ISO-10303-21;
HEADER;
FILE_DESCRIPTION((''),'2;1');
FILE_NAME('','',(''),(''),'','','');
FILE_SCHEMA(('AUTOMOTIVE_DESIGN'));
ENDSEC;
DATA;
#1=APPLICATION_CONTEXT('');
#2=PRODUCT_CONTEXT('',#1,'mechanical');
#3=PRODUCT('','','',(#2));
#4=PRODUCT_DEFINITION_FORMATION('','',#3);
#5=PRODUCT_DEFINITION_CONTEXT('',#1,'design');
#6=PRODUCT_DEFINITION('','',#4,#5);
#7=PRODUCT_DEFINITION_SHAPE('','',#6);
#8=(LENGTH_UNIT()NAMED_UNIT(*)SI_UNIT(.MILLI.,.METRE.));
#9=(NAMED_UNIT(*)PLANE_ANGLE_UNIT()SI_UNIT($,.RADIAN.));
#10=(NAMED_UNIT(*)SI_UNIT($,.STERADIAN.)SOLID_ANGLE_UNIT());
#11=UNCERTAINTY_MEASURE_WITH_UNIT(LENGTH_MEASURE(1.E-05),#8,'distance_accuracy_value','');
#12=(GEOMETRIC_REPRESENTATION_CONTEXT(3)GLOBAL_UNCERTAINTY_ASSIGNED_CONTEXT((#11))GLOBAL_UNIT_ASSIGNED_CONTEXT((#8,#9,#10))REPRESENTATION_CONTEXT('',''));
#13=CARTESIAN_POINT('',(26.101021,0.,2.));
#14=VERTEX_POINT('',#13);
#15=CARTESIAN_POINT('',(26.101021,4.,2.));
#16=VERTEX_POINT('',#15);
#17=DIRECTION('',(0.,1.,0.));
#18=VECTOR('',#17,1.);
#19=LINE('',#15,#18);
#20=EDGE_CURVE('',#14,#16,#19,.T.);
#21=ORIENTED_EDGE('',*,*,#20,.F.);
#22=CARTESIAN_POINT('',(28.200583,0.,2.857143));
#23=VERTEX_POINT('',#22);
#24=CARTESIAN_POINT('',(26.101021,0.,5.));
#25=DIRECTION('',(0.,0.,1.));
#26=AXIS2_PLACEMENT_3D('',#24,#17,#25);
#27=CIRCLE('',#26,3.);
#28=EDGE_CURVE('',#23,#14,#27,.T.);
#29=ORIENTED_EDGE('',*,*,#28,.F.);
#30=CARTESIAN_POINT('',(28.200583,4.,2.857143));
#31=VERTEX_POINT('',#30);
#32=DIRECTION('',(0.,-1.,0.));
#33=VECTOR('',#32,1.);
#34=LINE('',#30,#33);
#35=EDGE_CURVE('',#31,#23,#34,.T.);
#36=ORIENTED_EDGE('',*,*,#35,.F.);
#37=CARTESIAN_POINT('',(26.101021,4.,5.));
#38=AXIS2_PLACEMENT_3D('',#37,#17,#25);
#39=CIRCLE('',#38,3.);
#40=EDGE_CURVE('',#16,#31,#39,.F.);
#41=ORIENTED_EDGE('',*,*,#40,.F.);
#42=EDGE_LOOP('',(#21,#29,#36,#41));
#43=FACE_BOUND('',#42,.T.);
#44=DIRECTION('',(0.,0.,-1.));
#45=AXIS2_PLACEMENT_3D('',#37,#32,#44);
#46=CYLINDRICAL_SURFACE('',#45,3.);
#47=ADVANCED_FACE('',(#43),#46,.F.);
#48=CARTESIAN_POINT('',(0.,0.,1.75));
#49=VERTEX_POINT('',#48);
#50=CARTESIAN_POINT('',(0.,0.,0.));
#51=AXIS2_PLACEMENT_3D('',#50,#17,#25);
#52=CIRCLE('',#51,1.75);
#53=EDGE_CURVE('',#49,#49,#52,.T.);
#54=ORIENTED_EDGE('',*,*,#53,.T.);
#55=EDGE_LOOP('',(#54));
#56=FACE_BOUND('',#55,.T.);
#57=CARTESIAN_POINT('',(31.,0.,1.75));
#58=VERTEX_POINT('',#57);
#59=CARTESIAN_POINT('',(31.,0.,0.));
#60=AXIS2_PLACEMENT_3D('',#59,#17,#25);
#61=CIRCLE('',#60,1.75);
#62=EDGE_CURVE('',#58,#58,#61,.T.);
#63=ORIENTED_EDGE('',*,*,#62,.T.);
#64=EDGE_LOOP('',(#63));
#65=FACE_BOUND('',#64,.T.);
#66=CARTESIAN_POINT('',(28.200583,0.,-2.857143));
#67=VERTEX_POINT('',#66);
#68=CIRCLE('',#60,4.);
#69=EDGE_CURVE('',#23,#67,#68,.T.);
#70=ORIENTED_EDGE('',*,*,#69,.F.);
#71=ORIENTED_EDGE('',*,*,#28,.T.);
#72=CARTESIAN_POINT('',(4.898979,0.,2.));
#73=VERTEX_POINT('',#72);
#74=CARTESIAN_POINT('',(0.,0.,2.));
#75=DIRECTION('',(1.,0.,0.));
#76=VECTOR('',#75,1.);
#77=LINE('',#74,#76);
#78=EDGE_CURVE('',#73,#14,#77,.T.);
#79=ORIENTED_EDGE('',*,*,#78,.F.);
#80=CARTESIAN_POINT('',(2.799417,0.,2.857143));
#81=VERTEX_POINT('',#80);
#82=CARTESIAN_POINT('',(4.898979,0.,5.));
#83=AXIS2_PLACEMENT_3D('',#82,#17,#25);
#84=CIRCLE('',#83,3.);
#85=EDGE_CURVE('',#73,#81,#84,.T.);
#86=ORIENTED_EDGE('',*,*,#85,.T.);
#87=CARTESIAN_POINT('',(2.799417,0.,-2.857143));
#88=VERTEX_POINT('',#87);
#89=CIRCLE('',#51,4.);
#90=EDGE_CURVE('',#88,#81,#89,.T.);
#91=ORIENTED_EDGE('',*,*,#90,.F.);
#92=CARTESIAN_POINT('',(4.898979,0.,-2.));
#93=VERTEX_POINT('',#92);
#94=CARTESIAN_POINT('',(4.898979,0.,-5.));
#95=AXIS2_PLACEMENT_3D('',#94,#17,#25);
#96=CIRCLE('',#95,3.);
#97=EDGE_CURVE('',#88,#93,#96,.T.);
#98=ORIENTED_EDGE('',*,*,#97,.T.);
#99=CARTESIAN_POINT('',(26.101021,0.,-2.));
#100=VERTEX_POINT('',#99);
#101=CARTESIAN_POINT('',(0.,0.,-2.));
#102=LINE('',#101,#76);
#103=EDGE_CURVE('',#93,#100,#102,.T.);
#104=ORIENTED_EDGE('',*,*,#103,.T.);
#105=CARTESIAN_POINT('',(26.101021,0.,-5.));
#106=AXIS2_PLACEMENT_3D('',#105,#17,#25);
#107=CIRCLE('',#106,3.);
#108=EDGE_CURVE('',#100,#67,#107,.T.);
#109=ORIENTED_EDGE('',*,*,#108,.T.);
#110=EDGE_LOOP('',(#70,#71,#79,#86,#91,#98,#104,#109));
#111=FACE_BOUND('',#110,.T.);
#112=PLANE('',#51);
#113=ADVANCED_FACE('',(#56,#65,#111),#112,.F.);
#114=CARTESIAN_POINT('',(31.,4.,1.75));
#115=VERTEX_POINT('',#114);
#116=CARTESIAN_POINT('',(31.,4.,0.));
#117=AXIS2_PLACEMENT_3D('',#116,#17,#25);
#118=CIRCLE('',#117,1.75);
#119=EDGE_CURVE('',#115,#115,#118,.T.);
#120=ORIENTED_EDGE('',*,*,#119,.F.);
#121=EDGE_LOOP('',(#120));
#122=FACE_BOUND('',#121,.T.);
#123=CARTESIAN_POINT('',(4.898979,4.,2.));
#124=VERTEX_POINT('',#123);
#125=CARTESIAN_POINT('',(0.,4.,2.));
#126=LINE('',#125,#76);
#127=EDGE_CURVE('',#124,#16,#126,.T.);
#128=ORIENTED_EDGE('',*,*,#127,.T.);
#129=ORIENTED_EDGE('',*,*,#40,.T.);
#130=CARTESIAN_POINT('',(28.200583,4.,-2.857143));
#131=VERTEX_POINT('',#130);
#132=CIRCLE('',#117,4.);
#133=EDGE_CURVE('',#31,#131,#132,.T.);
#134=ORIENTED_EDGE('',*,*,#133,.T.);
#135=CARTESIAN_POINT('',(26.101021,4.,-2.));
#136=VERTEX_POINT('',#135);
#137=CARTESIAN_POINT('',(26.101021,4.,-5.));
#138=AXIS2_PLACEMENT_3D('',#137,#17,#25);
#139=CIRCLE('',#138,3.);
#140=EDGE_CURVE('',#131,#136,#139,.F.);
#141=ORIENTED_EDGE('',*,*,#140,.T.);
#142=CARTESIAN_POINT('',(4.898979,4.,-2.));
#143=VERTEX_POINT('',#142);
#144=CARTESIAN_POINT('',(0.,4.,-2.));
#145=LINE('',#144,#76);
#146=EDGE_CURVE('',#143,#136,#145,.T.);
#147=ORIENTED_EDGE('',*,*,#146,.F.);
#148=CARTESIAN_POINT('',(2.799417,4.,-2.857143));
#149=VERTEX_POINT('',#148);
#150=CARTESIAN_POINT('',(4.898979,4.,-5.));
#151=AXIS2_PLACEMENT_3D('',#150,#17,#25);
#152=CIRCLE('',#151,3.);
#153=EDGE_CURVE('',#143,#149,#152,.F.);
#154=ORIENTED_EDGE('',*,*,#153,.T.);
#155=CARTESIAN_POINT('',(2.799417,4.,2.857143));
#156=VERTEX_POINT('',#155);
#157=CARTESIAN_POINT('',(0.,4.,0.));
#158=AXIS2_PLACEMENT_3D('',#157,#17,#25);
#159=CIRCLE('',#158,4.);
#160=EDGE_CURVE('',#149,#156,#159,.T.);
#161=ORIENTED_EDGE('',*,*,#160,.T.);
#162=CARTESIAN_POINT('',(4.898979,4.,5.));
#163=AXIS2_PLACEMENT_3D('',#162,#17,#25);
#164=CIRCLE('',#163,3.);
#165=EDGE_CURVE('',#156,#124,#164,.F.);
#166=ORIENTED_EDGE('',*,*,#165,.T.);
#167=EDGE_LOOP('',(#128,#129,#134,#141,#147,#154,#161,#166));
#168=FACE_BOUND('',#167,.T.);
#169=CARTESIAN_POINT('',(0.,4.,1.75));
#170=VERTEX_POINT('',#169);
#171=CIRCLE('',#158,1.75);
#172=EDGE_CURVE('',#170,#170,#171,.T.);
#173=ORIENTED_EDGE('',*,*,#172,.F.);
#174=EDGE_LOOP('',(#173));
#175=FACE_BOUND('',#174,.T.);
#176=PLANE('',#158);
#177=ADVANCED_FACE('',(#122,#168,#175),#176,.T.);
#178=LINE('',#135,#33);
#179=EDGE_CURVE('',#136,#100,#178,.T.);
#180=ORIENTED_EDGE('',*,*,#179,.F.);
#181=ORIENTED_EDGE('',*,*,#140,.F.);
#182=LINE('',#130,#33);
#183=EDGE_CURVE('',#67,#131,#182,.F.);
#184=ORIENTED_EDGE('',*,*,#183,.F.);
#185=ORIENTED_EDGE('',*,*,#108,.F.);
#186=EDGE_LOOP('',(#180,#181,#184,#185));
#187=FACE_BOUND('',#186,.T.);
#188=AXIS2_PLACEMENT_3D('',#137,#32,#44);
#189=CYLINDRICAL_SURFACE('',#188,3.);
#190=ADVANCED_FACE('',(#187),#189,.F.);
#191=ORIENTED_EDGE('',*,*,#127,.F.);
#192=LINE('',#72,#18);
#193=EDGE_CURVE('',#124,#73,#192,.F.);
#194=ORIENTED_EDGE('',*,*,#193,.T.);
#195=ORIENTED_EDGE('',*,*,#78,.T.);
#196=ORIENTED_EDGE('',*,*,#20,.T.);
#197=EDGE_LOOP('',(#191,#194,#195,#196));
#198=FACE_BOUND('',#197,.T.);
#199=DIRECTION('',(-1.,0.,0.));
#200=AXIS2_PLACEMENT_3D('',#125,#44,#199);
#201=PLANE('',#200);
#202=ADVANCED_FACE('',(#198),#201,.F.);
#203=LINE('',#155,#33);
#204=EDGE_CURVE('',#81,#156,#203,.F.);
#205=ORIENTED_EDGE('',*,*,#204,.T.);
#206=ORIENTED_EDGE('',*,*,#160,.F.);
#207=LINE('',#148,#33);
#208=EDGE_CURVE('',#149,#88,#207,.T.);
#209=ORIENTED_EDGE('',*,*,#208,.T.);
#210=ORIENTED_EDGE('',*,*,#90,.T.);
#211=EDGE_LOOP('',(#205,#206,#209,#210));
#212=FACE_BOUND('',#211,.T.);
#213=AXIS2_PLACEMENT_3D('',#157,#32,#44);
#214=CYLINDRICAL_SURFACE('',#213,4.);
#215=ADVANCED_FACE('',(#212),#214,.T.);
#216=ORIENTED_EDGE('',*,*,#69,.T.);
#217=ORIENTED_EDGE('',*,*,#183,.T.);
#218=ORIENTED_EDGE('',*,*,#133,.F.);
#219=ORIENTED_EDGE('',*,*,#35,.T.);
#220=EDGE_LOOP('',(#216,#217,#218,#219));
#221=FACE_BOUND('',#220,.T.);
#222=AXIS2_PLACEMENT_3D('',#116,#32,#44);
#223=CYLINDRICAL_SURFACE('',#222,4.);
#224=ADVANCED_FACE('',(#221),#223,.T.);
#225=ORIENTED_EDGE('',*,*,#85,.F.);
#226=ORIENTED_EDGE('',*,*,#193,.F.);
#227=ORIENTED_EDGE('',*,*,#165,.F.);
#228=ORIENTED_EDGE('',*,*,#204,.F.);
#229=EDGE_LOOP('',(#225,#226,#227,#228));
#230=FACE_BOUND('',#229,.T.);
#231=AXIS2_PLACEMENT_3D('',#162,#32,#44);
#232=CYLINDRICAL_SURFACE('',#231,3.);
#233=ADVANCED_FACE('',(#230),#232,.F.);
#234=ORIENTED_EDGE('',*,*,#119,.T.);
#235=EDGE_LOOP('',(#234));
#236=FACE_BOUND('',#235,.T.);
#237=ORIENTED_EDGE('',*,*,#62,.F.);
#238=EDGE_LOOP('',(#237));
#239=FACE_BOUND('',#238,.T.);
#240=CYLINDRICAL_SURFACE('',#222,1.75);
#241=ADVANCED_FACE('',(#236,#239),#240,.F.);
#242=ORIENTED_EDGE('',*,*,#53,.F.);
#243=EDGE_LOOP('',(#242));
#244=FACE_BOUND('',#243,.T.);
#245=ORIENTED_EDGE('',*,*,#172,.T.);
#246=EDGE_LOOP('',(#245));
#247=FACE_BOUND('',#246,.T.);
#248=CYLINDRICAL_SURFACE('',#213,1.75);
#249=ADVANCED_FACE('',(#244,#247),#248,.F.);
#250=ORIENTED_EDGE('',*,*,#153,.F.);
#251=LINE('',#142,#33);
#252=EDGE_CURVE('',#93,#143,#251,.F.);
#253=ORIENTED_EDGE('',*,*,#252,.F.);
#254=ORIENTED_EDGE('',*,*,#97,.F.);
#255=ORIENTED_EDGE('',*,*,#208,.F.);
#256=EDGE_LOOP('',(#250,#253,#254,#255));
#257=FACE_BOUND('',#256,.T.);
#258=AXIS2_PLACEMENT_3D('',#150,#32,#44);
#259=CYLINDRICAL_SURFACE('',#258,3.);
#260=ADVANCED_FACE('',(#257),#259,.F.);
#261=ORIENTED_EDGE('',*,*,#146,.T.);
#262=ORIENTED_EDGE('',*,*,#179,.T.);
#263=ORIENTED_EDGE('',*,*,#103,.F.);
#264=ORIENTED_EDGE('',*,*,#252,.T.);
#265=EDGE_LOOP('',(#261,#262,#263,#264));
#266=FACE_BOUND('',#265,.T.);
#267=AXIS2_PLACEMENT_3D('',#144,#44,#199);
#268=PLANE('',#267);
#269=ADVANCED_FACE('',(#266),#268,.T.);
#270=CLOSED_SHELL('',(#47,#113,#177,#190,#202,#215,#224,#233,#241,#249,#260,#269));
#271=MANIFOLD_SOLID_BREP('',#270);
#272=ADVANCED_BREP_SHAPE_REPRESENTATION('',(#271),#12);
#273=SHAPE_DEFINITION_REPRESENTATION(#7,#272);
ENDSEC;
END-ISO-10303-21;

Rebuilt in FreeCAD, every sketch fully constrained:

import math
import FreeCAD as App
import Part
import Sketcher

V = App.Vector
Q = App.Units.Quantity


def edges_at(feature, points):
    """Names of the edges that pass closest to the given points."""
    edges = feature.Shape.Edges
    near = lambda p: min(range(len(edges)), key=lambda i: edges[i].distToShape(Part.Vertex(*p))[0])
    return sorted({f"Edge{near(p) + 1}" for p in points})

doc = App.newDocument("Part")
body = doc.addObject("PartDesign::Body", "Body")

# Sketch on XZ plane
sketch1 = doc.addObject("Sketcher::SketchObject", "Sketch")
body.addObject(sketch1)
sketch1.AttachmentSupport = (doc.XZ_Plane, [""])
sketch1.MapMode = "FlatFace"
sketch1.addGeometry(Part.LineSegment(V(27.5, -2, 0), V(3.5, -2, 0)), False)
sketch1.addGeometry(Part.ArcOfCircle(Part.Circle(V(0, 0, 0), V(0, 0, 1), 4), math.radians(30), math.radians(330)), False)
sketch1.addGeometry(Part.LineSegment(V(3.5, 2, 0), V(27.5, 2, 0)), False)
sketch1.addGeometry(Part.ArcOfCircle(Part.Circle(V(31, 0, 0), V(0, 0, 1), 4), math.radians(-150), math.radians(150)), False)
sketch1.addGeometry(Part.Circle(V(0, 0, 0), V(0, 0, 1), 1.8), False)
sketch1.addGeometry(Part.Circle(V(31, 0, 0), V(0, 0, 1), 1.8), False)
sketch1.addConstraint(Sketcher.Constraint("Coincident", 0, 2, 1, 2))
sketch1.addConstraint(Sketcher.Constraint("Coincident", 1, 1, 2, 1))
sketch1.addConstraint(Sketcher.Constraint("Coincident", 2, 2, 3, 2))
sketch1.addConstraint(Sketcher.Constraint("Coincident", 3, 1, 0, 1))
sketch1.addConstraint(Sketcher.Constraint("Horizontal", 0))
sketch1.addConstraint(Sketcher.Constraint("Horizontal", 2))
sketch1.addConstraint(Sketcher.Constraint("Coincident", 1, 3, -1, 1))
sketch1.addConstraint(Sketcher.Constraint("Coincident", 4, 3, -1, 1))
sketch1.addConstraint(Sketcher.Constraint("Coincident", 5, 3, 3, 3))
sketch1.addConstraint(Sketcher.Constraint("Equal", 1, 3))
sketch1.addConstraint(Sketcher.Constraint("Equal", 4, 5))
sketch1.addConstraint(Sketcher.Constraint("Symmetric", 2, 2, 3, 1, -1))
sketch1.addConstraint(Sketcher.Constraint("Radius", 1, Q("4 mm")))
sketch1.addConstraint(Sketcher.Constraint("Diameter", 4, Q("3.5 mm")))
sketch1.addConstraint(Sketcher.Constraint("DistanceX", -1, 1, 3, 3, Q("31 mm")))
sketch1.addConstraint(Sketcher.Constraint("DistanceY", 0, 2, -1, 1, Q("2 mm")))
pad1 = doc.addObject("PartDesign::Pad", "Pad")
body.addObject(pad1)
pad1.Profile = sketch1
pad1.Length = 4
pad1.Reversed = True
doc.recompute()

fillet = doc.addObject("PartDesign::Fillet", "Fillet")
body.addObject(fillet)
fillet.Base = (pad1, edges_at(pad1, [
    (27.536, 2, 2),
    (3.464, 2, 2),
    (3.464, 2, -2),
    (27.536, 2, -2),
]))
fillet.Radius = 3

doc.recompute()
